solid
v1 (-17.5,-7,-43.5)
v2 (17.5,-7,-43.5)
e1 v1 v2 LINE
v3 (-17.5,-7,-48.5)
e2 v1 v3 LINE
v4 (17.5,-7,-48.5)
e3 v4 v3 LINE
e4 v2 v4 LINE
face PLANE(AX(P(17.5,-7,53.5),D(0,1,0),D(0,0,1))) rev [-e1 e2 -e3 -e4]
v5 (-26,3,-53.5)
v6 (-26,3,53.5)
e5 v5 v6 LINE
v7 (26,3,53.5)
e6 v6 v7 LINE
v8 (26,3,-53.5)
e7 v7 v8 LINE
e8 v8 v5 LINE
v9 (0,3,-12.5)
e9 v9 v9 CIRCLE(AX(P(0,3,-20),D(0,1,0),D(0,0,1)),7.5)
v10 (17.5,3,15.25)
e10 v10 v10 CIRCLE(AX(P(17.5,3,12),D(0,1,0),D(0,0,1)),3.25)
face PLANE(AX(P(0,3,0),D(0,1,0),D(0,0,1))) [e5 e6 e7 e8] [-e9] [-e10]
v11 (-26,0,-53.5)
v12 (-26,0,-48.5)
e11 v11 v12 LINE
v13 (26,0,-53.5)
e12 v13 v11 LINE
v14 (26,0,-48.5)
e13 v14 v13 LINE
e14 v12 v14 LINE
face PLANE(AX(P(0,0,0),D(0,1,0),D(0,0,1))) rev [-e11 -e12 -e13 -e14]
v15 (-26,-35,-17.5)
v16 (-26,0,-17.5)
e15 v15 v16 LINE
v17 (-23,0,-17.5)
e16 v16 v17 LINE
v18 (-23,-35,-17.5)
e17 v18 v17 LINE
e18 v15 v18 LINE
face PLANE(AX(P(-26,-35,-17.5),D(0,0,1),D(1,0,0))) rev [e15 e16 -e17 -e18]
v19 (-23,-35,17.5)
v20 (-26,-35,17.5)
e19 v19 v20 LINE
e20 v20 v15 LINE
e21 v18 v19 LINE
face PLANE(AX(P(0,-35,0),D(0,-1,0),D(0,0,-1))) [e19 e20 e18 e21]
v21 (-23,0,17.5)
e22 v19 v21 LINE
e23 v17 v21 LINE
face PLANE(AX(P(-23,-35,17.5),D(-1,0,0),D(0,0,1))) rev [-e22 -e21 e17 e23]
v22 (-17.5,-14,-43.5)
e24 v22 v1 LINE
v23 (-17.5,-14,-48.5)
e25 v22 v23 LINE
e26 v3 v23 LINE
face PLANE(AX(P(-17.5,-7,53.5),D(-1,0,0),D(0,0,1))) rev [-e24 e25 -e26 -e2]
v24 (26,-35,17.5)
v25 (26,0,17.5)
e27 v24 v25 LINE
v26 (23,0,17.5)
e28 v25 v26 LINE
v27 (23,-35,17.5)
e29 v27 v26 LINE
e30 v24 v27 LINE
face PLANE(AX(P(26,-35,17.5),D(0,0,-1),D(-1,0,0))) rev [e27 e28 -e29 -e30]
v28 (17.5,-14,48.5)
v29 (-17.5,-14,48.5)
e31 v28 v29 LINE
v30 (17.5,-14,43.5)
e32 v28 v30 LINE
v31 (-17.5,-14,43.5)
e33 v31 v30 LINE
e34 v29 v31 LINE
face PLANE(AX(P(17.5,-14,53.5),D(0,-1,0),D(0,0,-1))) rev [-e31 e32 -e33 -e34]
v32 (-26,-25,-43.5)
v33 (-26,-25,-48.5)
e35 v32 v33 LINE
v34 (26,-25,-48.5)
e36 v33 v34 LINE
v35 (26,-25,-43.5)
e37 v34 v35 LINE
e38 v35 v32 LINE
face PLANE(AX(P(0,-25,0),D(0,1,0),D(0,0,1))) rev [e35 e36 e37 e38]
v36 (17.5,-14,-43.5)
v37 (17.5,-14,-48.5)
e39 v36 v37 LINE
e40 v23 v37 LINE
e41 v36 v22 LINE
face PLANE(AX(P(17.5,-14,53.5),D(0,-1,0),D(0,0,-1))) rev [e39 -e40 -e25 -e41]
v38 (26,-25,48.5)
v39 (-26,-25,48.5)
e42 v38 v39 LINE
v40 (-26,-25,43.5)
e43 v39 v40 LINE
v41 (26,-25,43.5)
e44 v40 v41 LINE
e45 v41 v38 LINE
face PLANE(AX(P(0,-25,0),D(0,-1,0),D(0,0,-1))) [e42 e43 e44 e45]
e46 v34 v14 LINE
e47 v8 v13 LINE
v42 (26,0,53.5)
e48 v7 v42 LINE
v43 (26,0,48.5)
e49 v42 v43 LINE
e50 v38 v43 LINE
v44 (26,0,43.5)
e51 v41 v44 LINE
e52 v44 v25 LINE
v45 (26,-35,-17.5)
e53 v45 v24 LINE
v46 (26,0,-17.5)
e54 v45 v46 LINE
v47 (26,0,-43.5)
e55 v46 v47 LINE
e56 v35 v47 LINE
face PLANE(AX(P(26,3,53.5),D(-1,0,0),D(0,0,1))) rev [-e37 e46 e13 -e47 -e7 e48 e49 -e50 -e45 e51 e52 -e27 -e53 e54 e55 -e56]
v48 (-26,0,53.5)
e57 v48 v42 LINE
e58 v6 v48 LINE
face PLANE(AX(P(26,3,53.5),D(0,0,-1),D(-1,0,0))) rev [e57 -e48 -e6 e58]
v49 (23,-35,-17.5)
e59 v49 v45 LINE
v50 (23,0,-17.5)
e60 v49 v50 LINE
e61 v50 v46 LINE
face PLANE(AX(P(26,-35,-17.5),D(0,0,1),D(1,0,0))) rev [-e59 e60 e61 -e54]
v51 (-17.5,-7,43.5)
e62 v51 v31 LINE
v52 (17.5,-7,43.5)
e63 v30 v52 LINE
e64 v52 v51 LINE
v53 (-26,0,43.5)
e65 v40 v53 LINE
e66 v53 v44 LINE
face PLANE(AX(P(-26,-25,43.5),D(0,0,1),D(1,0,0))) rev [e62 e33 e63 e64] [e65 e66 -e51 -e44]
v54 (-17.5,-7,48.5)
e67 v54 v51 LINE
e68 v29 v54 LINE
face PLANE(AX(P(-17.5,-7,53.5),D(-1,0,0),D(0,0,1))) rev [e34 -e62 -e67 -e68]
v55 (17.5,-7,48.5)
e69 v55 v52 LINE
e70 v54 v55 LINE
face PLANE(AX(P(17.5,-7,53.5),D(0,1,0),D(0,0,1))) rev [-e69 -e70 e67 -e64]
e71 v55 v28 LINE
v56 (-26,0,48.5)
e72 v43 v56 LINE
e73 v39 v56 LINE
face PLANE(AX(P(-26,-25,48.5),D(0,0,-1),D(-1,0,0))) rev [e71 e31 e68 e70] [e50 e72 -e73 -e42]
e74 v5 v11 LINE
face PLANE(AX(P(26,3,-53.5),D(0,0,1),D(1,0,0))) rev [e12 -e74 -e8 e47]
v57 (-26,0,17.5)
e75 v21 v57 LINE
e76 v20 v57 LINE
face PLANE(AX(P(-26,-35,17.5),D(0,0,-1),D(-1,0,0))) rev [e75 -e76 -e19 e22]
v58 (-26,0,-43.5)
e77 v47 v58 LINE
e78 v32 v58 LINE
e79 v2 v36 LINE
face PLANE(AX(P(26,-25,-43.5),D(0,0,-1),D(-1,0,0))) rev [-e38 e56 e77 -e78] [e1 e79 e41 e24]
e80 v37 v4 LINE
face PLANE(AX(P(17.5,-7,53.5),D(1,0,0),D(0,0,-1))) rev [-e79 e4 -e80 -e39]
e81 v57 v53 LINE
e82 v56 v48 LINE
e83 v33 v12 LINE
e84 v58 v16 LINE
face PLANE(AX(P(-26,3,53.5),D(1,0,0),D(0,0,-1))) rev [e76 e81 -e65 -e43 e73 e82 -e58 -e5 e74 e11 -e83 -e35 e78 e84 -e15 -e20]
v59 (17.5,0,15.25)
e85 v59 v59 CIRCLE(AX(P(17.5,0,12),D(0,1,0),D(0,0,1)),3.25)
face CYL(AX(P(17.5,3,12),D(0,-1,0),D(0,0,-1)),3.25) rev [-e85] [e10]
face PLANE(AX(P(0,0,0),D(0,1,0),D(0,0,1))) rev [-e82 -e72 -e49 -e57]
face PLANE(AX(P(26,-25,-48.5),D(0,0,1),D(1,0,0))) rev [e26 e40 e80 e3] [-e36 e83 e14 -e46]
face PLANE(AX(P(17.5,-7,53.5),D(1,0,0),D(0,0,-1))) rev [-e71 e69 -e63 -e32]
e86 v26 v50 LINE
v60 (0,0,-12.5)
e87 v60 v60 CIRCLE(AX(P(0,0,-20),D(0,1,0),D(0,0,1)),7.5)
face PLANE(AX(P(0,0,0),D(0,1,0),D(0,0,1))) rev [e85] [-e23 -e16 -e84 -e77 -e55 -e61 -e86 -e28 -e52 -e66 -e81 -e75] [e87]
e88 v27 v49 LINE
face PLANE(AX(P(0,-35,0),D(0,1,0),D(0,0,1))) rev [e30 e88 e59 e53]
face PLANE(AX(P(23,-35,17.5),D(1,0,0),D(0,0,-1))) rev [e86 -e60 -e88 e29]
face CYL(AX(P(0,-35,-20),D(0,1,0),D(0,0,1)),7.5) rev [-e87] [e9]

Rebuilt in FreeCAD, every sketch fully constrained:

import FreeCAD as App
import Part
import Sketcher
from FreeCAD import Vector
Q = App.Units.Quantity

doc = App.newDocument("Part")
params = doc.addObject("Spreadsheet::Sheet", "Params")
for row, (alias, value) in enumerate([
    ("sketch1_diameter", "6.5 mm"),
    ("sketch1_width", "52 mm"),
    ("sketch1_height", "107 mm"),
    ("pad1_length", "3 mm"),
    ("sketch2_width", "3 mm"),
    ("sketch2_height", "35 mm"),
    ("pad2_length", "35 mm"),
    ("sketch3_width", "52 mm"),
    ("sketch3_height", "5 mm"),
    ("pad3_length", "25 mm"),
    ("sketch4_diameter", "15 mm"),
    ("sketch5_width", "35 mm"),
    ("sketch5_height", "7 mm"),
], start=1):
    params.set(f"A{row}", alias)
    params.set(f"B{row}", "=" + value)
    params.setAlias(f"B{row}", alias)

body = doc.addObject("PartDesign::Body", "Body")

# Sketch on XZ plane
sketch1 = body.newObject("Sketcher::SketchObject", "Sketch")
sketch1.AttachmentSupport = (doc.getObject("XZ_Plane"), [""])
sketch1.MapMode = "FlatFace"
sketch1.addGeometry([
    Part.LineSegment(Vector(-26, -53.5, 0), Vector(-26, 53.5, 0)),  # 0
    Part.LineSegment(Vector(-26, 53.5, 0), Vector(26, 53.5, 0)),  # 1
    Part.LineSegment(Vector(26, 53.5, 0), Vector(26, -53.5, 0)),  # 2
    Part.LineSegment(Vector(26, -53.5, 0), Vector(-26, -53.5, 0)),  # 3
    Part.Circle(Vector(17.5, 12, 0), Vector(0, 0, 1), 3.2),  # 4
], False)
sketch1.addConstraint([
    Sketcher.Constraint("Coincident", 0, 2, 1, 1),
    Sketcher.Constraint("Coincident", 1, 2, 2, 1),
    Sketcher.Constraint("Coincident", 2, 2, 3, 1),
    Sketcher.Constraint("Coincident", 3, 2, 0, 1),
    Sketcher.Constraint("Vertical", 0),
    Sketcher.Constraint("Horizontal", 1),
    Sketcher.Constraint("Vertical", 2),
    Sketcher.Constraint("Horizontal", 3),
    Sketcher.Constraint("Symmetric", 0, 2, 2, 2, -1, 1),
    Sketcher.Constraint("Diameter", 4, Q("6.5 mm")),
    Sketcher.Constraint("DistanceX", 1, 1, 1, 2, Q("52 mm")),
    Sketcher.Constraint("DistanceY", 0, 1, 0, 2, Q("107 mm")),
    Sketcher.Constraint("DistanceY", -1, 1, 4, 3, Q("12 mm")),
    Sketcher.Constraint("DistanceX", -1, 1, 4, 3, Q("17.5 mm")),
])
sketch1.setExpression("Constraints[9]", "Params.sketch1_diameter")
sketch1.setExpression("Constraints[10]", "Params.sketch1_width")
sketch1.setExpression("Constraints[11]", "Params.sketch1_height")
pad1 = body.newObject("PartDesign::Pad", "Pad")
pad1.Profile = sketch1
pad1.setExpression("Length", "Params.pad1_length")
pad1.Reversed = True

# Sketch on XZ plane
sketch2 = body.newObject("Sketcher::SketchObject", "Sketch001")
sketch2.AttachmentSupport = (doc.getObject("XZ_Plane"), [""])
sketch2.MapMode = "FlatFace"
sketch2.addGeometry([
    Part.LineSegment(Vector(-26, 17.5, 0), Vector(-26, -17.5, 0)),  # 0
    Part.LineSegment(Vector(-26, -17.5, 0), Vector(-23, -17.5, 0)),  # 1
    Part.LineSegment(Vector(-23, -17.5, 0), Vector(-23, 17.5, 0)),  # 2
    Part.LineSegment(Vector(-23, 17.5, 0), Vector(-26, 17.5, 0)),  # 3
    Part.LineSegment(Vector(23, 17.5, 0), Vector(23, -17.5, 0)),  # 4
    Part.LineSegment(Vector(23, -17.5, 0), Vector(26, -17.5, 0)),  # 5
    Part.LineSegment(Vector(26, -17.5, 0), Vector(26, 17.5, 0)),  # 6
    Part.LineSegment(Vector(26, 17.5, 0), Vector(23, 17.5, 0)),  # 7
], False)
sketch2.addConstraint([
    Sketcher.Constraint("Coincident", 0, 2, 1, 1),
    Sketcher.Constraint("Coincident", 1, 2, 2, 1),
    Sketcher.Constraint("Coincident", 2, 2, 3, 1),
    Sketcher.Constraint("Coincident", 3, 2, 0, 1),
    Sketcher.Constraint("Coincident", 4, 2, 5, 1),
    Sketcher.Constraint("Coincident", 5, 2, 6, 1),
    Sketcher.Constraint("Coincident", 6, 2, 7, 1),
    Sketcher.Constraint("Coincident", 7, 2, 4, 1),
    Sketcher.Constraint("Vertical", 0),
    Sketcher.Constraint("Horizontal", 1),
    Sketcher.Constraint("Vertical", 2),
    Sketcher.Constraint("Horizontal", 3),
    Sketcher.Constraint("Vertical", 4),
    Sketcher.Constraint("Horizontal", 5),
    Sketcher.Constraint("Vertical", 6),
    Sketcher.Constraint("Horizontal", 7),
    Sketcher.Constraint("Symmetric", 2, 2, 4, 2, -1, 1),
    Sketcher.Constraint("Symmetric", 0, 2, 6, 2, -1, 1),
    Sketcher.Constraint("Horizontal", 1, 2, 4, 2),
    Sketcher.Constraint("DistanceX", 1, 1, 1, 2, Q("3 mm")),
    Sketcher.Constraint("DistanceY", 0, 2, 0, 1, Q("35 mm")),
    Sketcher.Constraint("DistanceX", 0, 2, -1, 1, Q("26 mm")),
])
sketch2.setExpression("Constraints[19]", "Params.sketch2_width")
sketch2.setExpression("Constraints[20]", "Params.sketch2_height")
pad2 = body.newObject("PartDesign::Pad", "Pad001")
pad2.Profile = sketch2
pad2.setExpression("Length", "Params.pad2_length")

# Sketch on XZ plane
sketch3 = body.newObject("Sketcher::SketchObject", "Sketch002")
sketch3.AttachmentSupport = (doc.getObject("XZ_Plane"), [""])
sketch3.MapMode = "FlatFace"
sketch3.addGeometry([
    Part.LineSegment(Vector(-26, 48, 0), Vector(-26, 44, 0)),  # 0
    Part.LineSegment(Vector(-26, 44, 0), Vector(26, 44, 0)),  # 1
    Part.LineSegment(Vector(26, 44, 0), Vector(26, 48, 0)),  # 2
    Part.LineSegment(Vector(26, 48, 0), Vector(-26, 48, 0)),  # 3
    Part.LineSegment(Vector(-26, -44, 0), Vector(-26, -48, 0)),  # 4
    Part.LineSegment(Vector(-26, -48, 0), Vector(26, -48, 0)),  # 5
    Part.LineSegment(Vector(26, -48, 0), Vector(26, -44, 0)),  # 6
    Part.LineSegment(Vector(26, -44, 0), Vector(-26, -44, 0)),  # 7
], False)
sketch3.addConstraint([
    Sketcher.Constraint("Coincident", 0, 2, 1, 1),
    Sketcher.Constraint("Coincident", 1, 2, 2, 1),
    Sketcher.Constraint("Coincident", 2, 2, 3, 1),
    Sketcher.Constraint("Coincident", 3, 2, 0, 1),
    Sketcher.Constraint("Coincident", 4, 2, 5, 1),
    Sketcher.Constraint("Coincident", 5, 2, 6, 1),
    Sketcher.Constraint("Coincident", 6, 2, 7, 1),
    Sketcher.Constraint("Coincident", 7, 2, 4, 1),
    Sketcher.Constraint("Vertical", 0),
    Sketcher.Constraint("Horizontal", 1),
    Sketcher.Constraint("Vertical", 2),
    Sketcher.Constraint("Horizontal", 3),
    Sketcher.Constraint("Vertical", 4),
    Sketcher.Constraint("Horizontal", 5),
    Sketcher.Constraint("Vertical", 6),
    Sketcher.Constraint("Horizontal", 7),
    Sketcher.Constraint("Symmetric", 2, 2, 4, 2, -1, 1),
    Sketcher.Constraint("Symmetric", 0, 2, 6, 2, -1, 1),
    Sketcher.Constraint("Vertical", 3, 2, 4, 2),
    Sketcher.Constraint("DistanceX", 1, 1, 1, 2, Q("52 mm")),
    Sketcher.Constraint("DistanceY", 0, 2, 0, 1, Q("5 mm")),
    Sketcher.Constraint("DistanceY", 4, 2, 0, 2, Q("92 mm")),
])
sketch3.setExpression("Constraints[19]", "Params.sketch3_width")
sketch3.setExpression("Constraints[20]", "Params.sketch3_height")
pad3 = body.newObject("PartDesign::Pad", "Pad002")
pad3.Profile = sketch3
pad3.setExpression("Length", "Params.pad3_length")

# Sketch on XZ plane
sketch4 = body.newObject("Sketcher::SketchObject", "Sketch003")
sketch4.AttachmentSupport = (doc.getObject("XZ_Plane"), [""])
sketch4.MapMode = "FlatFace"
sketch4.AttachmentOffset = App.Placement(Vector(0, 0, -3), App.Rotation())
sketch4.addGeometry(Part.Circle(Vector(0, -20, 0), Vector(0, 0, 1), 8), False)
sketch4.addConstraint([
    Sketcher.Constraint("PointOnObject", 0, 3, -2),
    Sketcher.Constraint("Diameter", 0, Q("15 mm")),
    Sketcher.Constraint("DistanceY", 0, 3, -1, 1, Q("20 mm")),
])
sketch4.setExpression("Constraints[1]", "Params.sketch4_diameter")
pocket1 = body.newObject("PartDesign::Pocket", "Pocket")
pocket1.Profile = sketch4
pocket1.Type = "ThroughAll"
pocket1.Reversed = True

# Sketch on XY plane
sketch5 = body.newObject("Sketcher::SketchObject", "Sketch004")
sketch5.AttachmentSupport = (doc.getObject("XY_Plane"), [""])
sketch5.MapMode = "FlatFace"
sketch5.AttachmentOffset = App.Placement(Vector(0, 0, -48.5), App.Rotation())
sketch5.addGeometry([
    Part.LineSegment(Vector(18, -7, 0), Vector(18, -14, 0)),
    Part.LineSegment(Vector(18, -14, 0), Vector(-18, -14, 0)),
    Part.LineSegment(Vector(-18, -14, 0), Vector(-18, -7, 0)),
    Part.LineSegment(Vector(-18, -7, 0), Vector(18, -7, 0)),
], False)
sketch5.addConstraint([
    Sketcher.Constraint("Coincident", 0, 2, 1, 1),
    Sketcher.Constraint("Coincident", 1, 2, 2, 1),
    Sketcher.Constraint("Coincident", 2, 2, 3, 1),
    Sketcher.Constraint("Coincident", 3, 2, 0, 1),
    Sketcher.Constraint("Vertical", 0),
    Sketcher.Constraint("Horizontal", 1),
    Sketcher.Constraint("Vertical", 2),
    Sketcher.Constraint("Horizontal", 3),
    Sketcher.Constraint("DistanceX", 1, 2, 1, 1, Q("35 mm")),
    Sketcher.Constraint("DistanceY", 0, 2, 0, 1, Q("7 mm")),
    Sketcher.Constraint("DistanceY", 0, 2, -1, 1, Q("14 mm")),
    Sketcher.Constraint("DistanceX", -1, 1, 0, 2, Q("17.5 mm")),
])
sketch5.setExpression("Constraints[8]", "Params.sketch5_width")
sketch5.setExpression("Constraints[9]", "Params.sketch5_height")
pocket2 = body.newObject("PartDesign::Pocket", "Pocket001")
pocket2.Profile = sketch5
pocket2.Type = "ThroughAll"
pocket2.Midplane = True

doc.recompute()
